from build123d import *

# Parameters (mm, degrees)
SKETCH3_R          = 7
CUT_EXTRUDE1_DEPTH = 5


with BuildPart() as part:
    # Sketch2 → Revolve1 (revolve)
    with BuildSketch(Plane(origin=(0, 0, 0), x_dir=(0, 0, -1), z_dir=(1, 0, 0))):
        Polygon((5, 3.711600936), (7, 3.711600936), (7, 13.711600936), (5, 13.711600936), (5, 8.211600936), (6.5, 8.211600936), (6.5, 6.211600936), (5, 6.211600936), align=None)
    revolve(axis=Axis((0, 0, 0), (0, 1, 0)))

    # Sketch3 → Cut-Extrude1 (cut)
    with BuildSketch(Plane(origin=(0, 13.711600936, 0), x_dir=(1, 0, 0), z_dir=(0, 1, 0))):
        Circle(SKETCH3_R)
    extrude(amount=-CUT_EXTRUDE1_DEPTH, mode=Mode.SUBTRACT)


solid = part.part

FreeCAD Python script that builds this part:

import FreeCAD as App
import Part
import Sketcher

V = App.Vector
Q = App.Units.Quantity

doc = App.newDocument("Part")
body = doc.addObject("PartDesign::Body", "Body")

# Sketch on YZ plane
sketch1 = body.newObject("Sketcher::SketchObject", "Sketch")
sketch1.AttachmentSupport = (doc.getObject("YZ_Plane"), [""])
sketch1.MapMode = "FlatFace"
sketch1.addGeometry([
    Part.LineSegment(V(3.7, -5, 0), V(3.7, -7, 0)),  # 0
    Part.LineSegment(V(3.7, -7, 0), V(13.7, -7, 0)),  # 1
    Part.LineSegment(V(13.7, -7, 0), V(13.7, -5, 0)),  # 2
    Part.LineSegment(V(13.7, -5, 0), V(8.2, -5, 0)),  # 3
    Part.LineSegment(V(8.2, -5, 0), V(8.2, -6.5, 0)),  # 4
    Part.LineSegment(V(8.2, -6.5, 0), V(6.2, -6.5, 0)),  # 5
    Part.LineSegment(V(6.2, -6.5, 0), V(6.2, -5, 0)),  # 6
    Part.LineSegment(V(6.2, -5, 0), V(3.7, -5, 0)),  # 7
], False)
sketch1.addConstraint([
    Sketcher.Constraint("Coincident", 0, 2, 1, 1),
    Sketcher.Constraint("Coincident", 1, 2, 2, 1),
    Sketcher.Constraint("Coincident", 2, 2, 3, 1),
    Sketcher.Constraint("Coincident", 3, 2, 4, 1),
    Sketcher.Constraint("Coincident", 4, 2, 5, 1),
    Sketcher.Constraint("Coincident", 5, 2, 6, 1),
    Sketcher.Constraint("Coincident", 6, 2, 7, 1),
    Sketcher.Constraint("Coincident", 7, 2, 0, 1),
    Sketcher.Constraint("Vertical", 0),
    Sketcher.Constraint("Horizontal", 1),
    Sketcher.Constraint("Vertical", 2),
    Sketcher.Constraint("Horizontal", 3),
    Sketcher.Constraint("Vertical", 4),
    Sketcher.Constraint("Horizontal", 5),
    Sketcher.Constraint("Vertical", 6),
    Sketcher.Constraint("Horizontal", 7),
    Sketcher.Constraint("Horizontal", 3, 2, 6, 2),
    Sketcher.Constraint("Equal", 5, 0),
    Sketcher.Constraint("DistanceX", 1, 1, 1, 2, Q("10 mm")),
    Sketcher.Constraint("DistanceX", 5, 2, 5, 1, Q("2 mm")),
    Sketcher.Constraint("DistanceX", 3, 2, 3, 1, Q("5.5 mm")),
    Sketcher.Constraint("DistanceY", 4, 2, 4, 1, Q("1.5 mm")),
    Sketcher.Constraint("DistanceY", 0, 2, -1, 1, Q("7 mm")),
    Sketcher.Constraint("DistanceX", -1, 1, 0, 2, Q("3.711601 mm")),
])
revolution = body.newObject("PartDesign::Revolution", "Revolution")
revolution.Profile = sketch1
revolution.ReferenceAxis = (sketch1, ["H_Axis"])
revolution.Angle = 360

# Sketch on XZ plane
sketch2 = body.newObject("Sketcher::SketchObject", "Sketch001")
sketch2.AttachmentSupport = (doc.getObject("XZ_Plane"), [""])
sketch2.MapMode = "FlatFace"
sketch2.AttachmentOffset = App.Placement(V(0, 0, -13.711601), App.Rotation())
sketch2.addGeometry(Part.Circle(V(0, 0, 0), V(0, 0, 1), 7), False)
sketch2.addConstraint([
    Sketcher.Constraint("Coincident", 0, 3, -1, 1),
    Sketcher.Constraint("Diameter", 0, Q("14 mm")),
])
pocket1 = body.newObject("PartDesign::Pocket", "Pocket")
pocket1.Profile = sketch2
pocket1.Length = 5
pocket1.Reversed = True

doc.recompute()
